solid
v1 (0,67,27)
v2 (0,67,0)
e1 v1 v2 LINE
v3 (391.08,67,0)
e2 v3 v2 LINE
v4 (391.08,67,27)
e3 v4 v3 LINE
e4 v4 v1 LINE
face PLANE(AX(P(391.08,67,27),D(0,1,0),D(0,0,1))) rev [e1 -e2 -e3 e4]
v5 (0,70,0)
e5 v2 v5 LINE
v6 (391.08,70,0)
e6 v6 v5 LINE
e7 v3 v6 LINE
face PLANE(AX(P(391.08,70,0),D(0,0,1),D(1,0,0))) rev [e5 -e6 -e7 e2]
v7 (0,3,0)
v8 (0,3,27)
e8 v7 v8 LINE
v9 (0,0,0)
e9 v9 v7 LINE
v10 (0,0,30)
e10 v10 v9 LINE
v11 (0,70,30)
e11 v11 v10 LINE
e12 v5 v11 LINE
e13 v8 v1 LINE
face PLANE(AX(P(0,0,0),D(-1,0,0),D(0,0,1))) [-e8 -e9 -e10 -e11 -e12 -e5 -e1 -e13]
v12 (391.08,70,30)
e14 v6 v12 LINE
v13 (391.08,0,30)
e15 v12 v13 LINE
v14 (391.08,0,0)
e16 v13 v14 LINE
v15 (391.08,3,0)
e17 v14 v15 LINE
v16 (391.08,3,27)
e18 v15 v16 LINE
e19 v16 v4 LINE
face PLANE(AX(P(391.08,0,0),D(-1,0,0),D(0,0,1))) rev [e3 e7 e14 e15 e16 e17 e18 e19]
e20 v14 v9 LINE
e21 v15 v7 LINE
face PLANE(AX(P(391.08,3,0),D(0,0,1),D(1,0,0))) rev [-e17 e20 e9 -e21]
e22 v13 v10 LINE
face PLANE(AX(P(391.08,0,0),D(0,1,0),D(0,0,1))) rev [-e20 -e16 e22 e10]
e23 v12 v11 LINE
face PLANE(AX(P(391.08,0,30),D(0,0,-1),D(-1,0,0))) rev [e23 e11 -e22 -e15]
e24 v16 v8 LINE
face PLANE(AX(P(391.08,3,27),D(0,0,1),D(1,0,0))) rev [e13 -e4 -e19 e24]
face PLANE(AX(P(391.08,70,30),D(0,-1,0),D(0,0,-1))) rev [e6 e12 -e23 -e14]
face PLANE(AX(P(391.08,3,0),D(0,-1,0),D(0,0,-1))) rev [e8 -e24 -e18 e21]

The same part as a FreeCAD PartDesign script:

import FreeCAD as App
import Part
import Sketcher

doc = App.newDocument("Part")
params = doc.addObject("Spreadsheet::Sheet", "Params")
for row, (alias, value) in enumerate([
    ("sketch1_width", "3 mm"),
    ("sketch1_width2", "64 mm"),
    ("sketch1_height", "30 mm"),
    ("sketch1_height2", "27 mm"),
    ("pad1_length", "391.08 mm"),
], start=1):
    params.set(f"A{row}", alias)
    params.set(f"B{row}", "=" + value)
    params.setAlias(f"B{row}", alias)

body = doc.addObject("PartDesign::Body", "Body")

sketch1 = body.newObject("Sketcher::SketchObject", "Sketch")
sketch1.AttachmentSupport = (doc.getObject("YZ_Plane"), [""])
sketch1.MapMode = "FlatFace"
sketch1.addGeometry(Part.LineSegment(App.Vector(0, 30, 0), App.Vector(0, 0, 0)), False)
sketch1.addGeometry(Part.LineSegment(App.Vector(0, 0, 0), App.Vector(3, 0, 0)), False)
sketch1.addGeometry(Part.LineSegment(App.Vector(3, 0, 0), App.Vector(3, 27, 0)), False)
sketch1.addGeometry(Part.LineSegment(App.Vector(3, 27, 0), App.Vector(67, 27, 0)), False)
sketch1.addGeometry(Part.LineSegment(App.Vector(67, 27, 0), App.Vector(67, 0, 0)), False)
sketch1.addGeometry(Part.LineSegment(App.Vector(67, 0, 0), App.Vector(70, 0, 0)), False)
sketch1.addGeometry(Part.LineSegment(App.Vector(70, 0, 0), App.Vector(70, 30, 0)), False)
sketch1.addGeometry(Part.LineSegment(App.Vector(70, 30, 0), App.Vector(0, 30, 0)), False)
sketch1.addConstraint(Sketcher.Constraint("Coincident", 0, 2, 1, 1))
sketch1.addConstraint(Sketcher.Constraint("Coincident", 1, 2, 2, 1))
sketch1.addConstraint(Sketcher.Constraint("Coincident", 2, 2, 3, 1))
sketch1.addConstraint(Sketcher.Constraint("Coincident", 3, 2, 4, 1))
sketch1.addConstraint(Sketcher.Constraint("Coincident", 4, 2, 5, 1))
sketch1.addConstraint(Sketcher.Constraint("Coincident", 5, 2, 6, 1))
sketch1.addConstraint(Sketcher.Constraint("Coincident", 6, 2, 7, 1))
sketch1.addConstraint(Sketcher.Constraint("Coincident", 7, 2, 0, 1))
sketch1.addConstraint(Sketcher.Constraint("Vertical", 0))
sketch1.addConstraint(Sketcher.Constraint("Horizontal", 1))
sketch1.addConstraint(Sketcher.Constraint("Vertical", 2))
sketch1.addConstraint(Sketcher.Constraint("Horizontal", 3))
sketch1.addConstraint(Sketcher.Constraint("Vertical", 4))
sketch1.addConstraint(Sketcher.Constraint("Horizontal", 5))
sketch1.addConstraint(Sketcher.Constraint("Vertical", 6))
sketch1.addConstraint(Sketcher.Constraint("Horizontal", 7))
sketch1.addConstraint(Sketcher.Constraint("Coincident", 0, 2, -1, 1))
sketch1.addConstraint(Sketcher.Constraint("PointOnObject", 4, 2, -1))
sketch1.addConstraint(Sketcher.Constraint("Equal", 1, 5))
sketch1.addConstraint(Sketcher.Constraint("DistanceX", 1, 1, 1, 2, 3.0))
sketch1.addConstraint(Sketcher.Constraint("DistanceX", 3, 1, 3, 2, 64.0))
sketch1.addConstraint(Sketcher.Constraint("DistanceY", 0, 2, 0, 1, 30.0))
sketch1.addConstraint(Sketcher.Constraint("DistanceY", 2, 1, 2, 2, 27.0))
sketch1.setExpression("Constraints[19]", "Params.sketch1_width")
sketch1.setExpression("Constraints[20]", "Params.sketch1_width2")
sketch1.setExpression("Constraints[21]", "Params.sketch1_height")
sketch1.setExpression("Constraints[22]", "Params.sketch1_height2")
pad1 = body.newObject("PartDesign::Pad", "Pad")
pad1.Profile = sketch1
pad1.setExpression("Length", "Params.pad1_length")

doc.recompute()
